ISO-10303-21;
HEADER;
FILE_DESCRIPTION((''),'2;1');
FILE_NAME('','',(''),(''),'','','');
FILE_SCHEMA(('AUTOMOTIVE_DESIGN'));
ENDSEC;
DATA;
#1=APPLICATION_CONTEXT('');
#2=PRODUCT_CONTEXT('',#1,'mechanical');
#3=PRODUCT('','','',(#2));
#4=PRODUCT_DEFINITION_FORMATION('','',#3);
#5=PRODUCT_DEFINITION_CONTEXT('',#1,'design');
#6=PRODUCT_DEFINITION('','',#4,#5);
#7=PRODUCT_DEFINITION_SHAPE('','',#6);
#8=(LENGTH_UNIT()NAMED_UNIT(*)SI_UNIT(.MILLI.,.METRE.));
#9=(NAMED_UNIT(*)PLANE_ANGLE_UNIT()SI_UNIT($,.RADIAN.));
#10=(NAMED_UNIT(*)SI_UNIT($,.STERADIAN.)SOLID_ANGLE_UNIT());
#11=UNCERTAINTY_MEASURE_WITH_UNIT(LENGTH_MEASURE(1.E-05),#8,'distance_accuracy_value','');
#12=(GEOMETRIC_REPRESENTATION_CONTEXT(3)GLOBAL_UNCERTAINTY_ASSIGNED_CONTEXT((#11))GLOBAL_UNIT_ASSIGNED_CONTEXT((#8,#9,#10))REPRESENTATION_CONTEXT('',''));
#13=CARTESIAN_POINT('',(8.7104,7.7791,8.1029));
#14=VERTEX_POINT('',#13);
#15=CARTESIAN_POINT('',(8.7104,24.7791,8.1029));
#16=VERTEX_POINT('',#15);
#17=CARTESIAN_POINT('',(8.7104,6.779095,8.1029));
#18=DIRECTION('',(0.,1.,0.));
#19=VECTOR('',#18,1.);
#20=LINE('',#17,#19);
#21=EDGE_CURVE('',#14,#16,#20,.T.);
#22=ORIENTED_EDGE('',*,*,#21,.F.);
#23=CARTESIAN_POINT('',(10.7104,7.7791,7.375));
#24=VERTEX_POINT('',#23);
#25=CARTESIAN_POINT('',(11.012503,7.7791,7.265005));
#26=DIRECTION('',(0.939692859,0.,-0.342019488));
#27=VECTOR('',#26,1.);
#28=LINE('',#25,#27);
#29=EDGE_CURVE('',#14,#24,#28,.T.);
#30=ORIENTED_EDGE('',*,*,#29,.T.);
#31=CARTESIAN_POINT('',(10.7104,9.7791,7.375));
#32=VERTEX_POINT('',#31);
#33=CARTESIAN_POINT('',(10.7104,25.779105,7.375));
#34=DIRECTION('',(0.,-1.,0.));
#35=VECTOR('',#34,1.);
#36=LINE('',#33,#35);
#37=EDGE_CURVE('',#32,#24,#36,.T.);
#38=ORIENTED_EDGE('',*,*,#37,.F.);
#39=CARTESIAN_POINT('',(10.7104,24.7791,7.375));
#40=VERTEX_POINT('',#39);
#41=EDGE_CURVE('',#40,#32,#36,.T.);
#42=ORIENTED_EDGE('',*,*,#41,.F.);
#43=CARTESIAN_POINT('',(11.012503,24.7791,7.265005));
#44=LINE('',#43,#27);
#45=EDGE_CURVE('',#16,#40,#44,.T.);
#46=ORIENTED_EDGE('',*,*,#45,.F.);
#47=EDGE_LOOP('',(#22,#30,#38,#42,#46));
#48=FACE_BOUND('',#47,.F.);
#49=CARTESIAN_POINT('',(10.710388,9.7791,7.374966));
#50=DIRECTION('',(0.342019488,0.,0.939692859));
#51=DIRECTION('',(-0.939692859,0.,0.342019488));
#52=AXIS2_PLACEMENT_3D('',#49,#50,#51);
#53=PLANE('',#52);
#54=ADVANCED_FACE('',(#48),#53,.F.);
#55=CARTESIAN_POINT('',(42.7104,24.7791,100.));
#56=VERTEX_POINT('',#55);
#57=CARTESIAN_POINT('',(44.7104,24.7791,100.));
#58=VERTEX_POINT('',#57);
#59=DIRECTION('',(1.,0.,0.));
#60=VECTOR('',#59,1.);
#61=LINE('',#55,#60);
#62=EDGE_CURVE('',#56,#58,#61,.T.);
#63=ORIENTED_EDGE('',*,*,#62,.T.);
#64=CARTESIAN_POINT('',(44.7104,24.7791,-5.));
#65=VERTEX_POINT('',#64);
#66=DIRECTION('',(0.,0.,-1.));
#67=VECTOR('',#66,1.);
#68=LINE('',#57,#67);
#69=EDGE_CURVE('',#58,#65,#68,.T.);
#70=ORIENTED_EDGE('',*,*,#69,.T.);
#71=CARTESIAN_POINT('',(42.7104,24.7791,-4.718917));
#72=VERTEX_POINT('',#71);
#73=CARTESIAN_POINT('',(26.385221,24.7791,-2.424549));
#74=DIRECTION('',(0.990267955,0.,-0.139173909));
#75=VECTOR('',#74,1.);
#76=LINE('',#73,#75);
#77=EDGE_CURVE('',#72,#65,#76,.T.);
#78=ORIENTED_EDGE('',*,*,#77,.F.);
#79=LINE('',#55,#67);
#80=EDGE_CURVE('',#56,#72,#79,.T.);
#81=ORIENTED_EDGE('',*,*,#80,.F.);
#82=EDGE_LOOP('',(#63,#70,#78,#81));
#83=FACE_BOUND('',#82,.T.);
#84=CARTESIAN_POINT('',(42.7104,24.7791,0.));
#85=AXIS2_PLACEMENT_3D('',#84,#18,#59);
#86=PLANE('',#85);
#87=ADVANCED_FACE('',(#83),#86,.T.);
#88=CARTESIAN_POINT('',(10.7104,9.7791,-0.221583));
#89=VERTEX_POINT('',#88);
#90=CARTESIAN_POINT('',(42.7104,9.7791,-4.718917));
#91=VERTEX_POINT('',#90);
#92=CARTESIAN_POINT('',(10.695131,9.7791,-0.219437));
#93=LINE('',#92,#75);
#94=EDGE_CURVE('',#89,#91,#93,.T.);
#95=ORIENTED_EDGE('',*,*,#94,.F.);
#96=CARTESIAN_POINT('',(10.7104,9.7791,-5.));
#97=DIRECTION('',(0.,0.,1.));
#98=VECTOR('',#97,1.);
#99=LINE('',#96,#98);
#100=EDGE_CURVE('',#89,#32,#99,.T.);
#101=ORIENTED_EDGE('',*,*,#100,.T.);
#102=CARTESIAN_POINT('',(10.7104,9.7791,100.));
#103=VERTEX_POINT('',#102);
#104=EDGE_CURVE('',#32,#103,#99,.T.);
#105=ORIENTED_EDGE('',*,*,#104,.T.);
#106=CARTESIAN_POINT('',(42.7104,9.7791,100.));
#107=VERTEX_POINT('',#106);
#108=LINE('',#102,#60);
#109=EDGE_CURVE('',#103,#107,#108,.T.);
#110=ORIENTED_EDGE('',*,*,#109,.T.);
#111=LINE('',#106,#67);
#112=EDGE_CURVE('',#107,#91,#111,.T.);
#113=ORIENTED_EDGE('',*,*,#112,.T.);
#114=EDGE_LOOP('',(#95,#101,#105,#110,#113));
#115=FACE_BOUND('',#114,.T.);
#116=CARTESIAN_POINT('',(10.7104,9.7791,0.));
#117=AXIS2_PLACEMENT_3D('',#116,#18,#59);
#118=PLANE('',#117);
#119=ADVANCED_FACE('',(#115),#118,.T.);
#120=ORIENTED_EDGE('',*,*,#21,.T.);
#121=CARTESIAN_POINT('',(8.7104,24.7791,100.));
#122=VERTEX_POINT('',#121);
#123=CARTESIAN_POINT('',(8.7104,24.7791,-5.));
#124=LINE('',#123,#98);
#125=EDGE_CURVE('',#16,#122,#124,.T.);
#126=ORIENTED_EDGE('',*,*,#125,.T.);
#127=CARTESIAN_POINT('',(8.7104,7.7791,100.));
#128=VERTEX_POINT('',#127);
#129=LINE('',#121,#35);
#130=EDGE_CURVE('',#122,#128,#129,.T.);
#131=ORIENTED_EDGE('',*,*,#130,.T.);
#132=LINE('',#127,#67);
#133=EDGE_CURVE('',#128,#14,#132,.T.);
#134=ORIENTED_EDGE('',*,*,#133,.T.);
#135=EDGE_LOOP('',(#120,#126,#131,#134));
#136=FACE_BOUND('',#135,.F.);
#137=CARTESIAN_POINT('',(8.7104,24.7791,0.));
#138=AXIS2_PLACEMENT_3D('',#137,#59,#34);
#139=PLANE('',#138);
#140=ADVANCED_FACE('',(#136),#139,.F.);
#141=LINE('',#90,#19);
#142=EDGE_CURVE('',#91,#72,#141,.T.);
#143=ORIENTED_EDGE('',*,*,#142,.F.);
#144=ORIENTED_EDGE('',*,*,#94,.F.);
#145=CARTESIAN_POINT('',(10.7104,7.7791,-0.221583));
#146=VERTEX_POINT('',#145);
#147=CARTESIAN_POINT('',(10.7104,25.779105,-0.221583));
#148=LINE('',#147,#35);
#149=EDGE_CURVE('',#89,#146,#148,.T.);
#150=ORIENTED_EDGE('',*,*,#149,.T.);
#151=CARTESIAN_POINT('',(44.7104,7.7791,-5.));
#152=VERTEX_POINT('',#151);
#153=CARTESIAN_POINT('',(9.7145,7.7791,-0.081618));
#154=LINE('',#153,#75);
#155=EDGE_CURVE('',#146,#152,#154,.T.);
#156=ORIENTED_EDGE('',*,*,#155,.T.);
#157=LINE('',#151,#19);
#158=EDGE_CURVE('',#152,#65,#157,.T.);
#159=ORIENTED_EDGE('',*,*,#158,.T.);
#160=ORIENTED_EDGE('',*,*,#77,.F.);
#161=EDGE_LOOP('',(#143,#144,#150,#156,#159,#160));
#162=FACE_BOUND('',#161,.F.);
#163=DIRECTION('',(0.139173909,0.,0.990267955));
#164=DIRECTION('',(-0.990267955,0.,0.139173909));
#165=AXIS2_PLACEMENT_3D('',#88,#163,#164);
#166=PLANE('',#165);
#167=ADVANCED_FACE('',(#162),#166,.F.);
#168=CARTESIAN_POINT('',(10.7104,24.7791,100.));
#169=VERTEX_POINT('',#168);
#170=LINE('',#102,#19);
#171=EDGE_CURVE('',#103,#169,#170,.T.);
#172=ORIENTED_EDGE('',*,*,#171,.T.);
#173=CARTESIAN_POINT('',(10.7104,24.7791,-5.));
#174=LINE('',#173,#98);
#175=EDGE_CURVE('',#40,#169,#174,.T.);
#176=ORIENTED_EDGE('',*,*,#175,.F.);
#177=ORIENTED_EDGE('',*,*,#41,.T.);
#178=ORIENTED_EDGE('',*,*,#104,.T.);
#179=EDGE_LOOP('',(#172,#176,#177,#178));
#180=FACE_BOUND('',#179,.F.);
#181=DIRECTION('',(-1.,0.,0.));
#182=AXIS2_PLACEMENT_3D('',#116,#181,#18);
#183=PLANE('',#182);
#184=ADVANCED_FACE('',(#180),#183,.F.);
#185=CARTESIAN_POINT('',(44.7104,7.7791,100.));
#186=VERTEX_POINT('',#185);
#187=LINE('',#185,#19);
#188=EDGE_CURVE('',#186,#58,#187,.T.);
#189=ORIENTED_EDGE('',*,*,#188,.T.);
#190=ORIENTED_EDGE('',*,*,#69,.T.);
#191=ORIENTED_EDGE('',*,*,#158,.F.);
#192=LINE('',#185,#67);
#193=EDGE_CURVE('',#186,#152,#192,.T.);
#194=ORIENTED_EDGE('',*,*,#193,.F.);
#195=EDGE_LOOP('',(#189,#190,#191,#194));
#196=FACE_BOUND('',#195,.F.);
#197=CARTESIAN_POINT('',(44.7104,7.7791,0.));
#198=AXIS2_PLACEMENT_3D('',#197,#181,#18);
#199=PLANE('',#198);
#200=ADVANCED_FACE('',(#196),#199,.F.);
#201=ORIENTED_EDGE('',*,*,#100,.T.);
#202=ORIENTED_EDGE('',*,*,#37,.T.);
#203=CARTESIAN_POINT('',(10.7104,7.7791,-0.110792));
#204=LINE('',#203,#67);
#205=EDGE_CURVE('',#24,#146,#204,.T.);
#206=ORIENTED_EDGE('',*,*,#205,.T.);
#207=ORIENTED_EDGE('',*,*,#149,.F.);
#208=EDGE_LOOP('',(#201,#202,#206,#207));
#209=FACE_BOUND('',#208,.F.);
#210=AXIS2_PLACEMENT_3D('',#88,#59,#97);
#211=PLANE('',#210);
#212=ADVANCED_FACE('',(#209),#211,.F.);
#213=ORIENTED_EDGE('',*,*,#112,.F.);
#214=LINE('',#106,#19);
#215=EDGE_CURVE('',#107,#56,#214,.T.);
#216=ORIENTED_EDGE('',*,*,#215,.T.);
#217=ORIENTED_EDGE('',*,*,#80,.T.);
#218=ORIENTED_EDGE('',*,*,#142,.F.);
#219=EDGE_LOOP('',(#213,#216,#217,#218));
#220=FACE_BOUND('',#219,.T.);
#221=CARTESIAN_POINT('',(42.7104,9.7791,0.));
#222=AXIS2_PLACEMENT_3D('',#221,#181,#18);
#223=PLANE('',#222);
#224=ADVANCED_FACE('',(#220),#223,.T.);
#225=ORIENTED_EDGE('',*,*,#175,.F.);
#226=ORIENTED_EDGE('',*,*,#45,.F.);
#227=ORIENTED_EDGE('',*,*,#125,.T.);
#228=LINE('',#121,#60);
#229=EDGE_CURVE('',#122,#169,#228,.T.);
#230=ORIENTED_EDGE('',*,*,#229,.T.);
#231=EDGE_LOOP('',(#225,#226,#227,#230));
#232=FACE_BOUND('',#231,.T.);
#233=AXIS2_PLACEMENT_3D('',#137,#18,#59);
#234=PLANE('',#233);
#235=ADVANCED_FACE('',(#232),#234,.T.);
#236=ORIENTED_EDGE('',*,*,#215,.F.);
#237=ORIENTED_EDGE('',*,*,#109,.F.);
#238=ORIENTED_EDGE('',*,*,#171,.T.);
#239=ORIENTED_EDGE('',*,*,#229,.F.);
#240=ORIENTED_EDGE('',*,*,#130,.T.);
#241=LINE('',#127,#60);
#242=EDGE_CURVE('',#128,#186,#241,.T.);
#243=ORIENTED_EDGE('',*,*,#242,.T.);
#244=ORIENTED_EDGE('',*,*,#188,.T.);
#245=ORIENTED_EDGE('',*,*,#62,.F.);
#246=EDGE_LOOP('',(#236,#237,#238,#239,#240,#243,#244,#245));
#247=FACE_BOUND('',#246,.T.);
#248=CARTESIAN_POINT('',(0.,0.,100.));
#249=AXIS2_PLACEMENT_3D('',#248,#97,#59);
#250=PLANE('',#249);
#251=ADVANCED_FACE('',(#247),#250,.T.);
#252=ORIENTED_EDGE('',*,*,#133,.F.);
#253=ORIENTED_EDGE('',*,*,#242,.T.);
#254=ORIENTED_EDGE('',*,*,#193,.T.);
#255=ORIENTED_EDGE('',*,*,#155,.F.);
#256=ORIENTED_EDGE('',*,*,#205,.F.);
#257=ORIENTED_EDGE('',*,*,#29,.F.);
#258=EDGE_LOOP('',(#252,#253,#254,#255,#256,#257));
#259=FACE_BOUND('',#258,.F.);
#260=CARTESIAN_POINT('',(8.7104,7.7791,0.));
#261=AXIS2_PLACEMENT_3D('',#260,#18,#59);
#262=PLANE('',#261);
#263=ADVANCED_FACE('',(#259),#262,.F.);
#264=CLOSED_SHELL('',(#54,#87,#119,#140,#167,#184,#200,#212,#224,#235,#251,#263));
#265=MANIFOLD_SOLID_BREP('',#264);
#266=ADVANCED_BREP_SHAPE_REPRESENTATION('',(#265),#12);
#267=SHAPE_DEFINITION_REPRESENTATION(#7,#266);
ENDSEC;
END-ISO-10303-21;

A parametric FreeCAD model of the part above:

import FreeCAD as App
import Part
import Sketcher
Q = App.Units.Quantity

doc = App.newDocument("Part")
body = doc.addObject("PartDesign::Body", "Body")

# Sketch on XY plane
sketch1 = body.newObject("Sketcher::SketchObject", "Sketch")
sketch1.AttachmentSupport = (doc.getObject("XY_Plane"), [""])
sketch1.MapMode = "FlatFace"
sketch1.addGeometry(Part.LineSegment(App.Vector(42.7104, 9.7791, 0), App.Vector(10.7104, 9.7791, 0)), False)
sketch1.addGeometry(Part.LineSegment(App.Vector(10.7104, 9.7791, 0), App.Vector(10.7104, 24.7791, 0)), False)
sketch1.addGeometry(Part.LineSegment(App.Vector(10.7104, 24.7791, 0), App.Vector(8.7104, 24.7791, 0)), False)
sketch1.addGeometry(Part.LineSegment(App.Vector(8.7104, 24.7791, 0), App.Vector(8.7104, 7.7791, 0)), False)
sketch1.addGeometry(Part.LineSegment(App.Vector(8.7104, 7.7791, 0), App.Vector(44.7104, 7.7791, 0)), False)
sketch1.addGeometry(Part.LineSegment(App.Vector(44.7104, 7.7791, 0), App.Vector(44.7104, 24.7791, 0)), False)
sketch1.addGeometry(Part.LineSegment(App.Vector(44.7104, 24.7791, 0), App.Vector(42.7104, 24.7791, 0)), False)
sketch1.addGeometry(Part.LineSegment(App.Vector(42.7104, 24.7791, 0), App.Vector(42.7104, 9.7791, 0)), False)
sketch1.addConstraint(Sketcher.Constraint("Coincident", 0, 2, 1, 1))
sketch1.addConstraint(Sketcher.Constraint("Coincident", 1, 2, 2, 1))
sketch1.addConstraint(Sketcher.Constraint("Coincident", 2, 2, 3, 1))
sketch1.addConstraint(Sketcher.Constraint("Coincident", 3, 2, 4, 1))
sketch1.addConstraint(Sketcher.Constraint("Coincident", 4, 2, 5, 1))
sketch1.addConstraint(Sketcher.Constraint("Coincident", 5, 2, 6, 1))
sketch1.addConstraint(Sketcher.Constraint("Coincident", 6, 2, 7, 1))
sketch1.addConstraint(Sketcher.Constraint("Coincident", 7, 2, 0, 1))
sketch1.addConstraint(Sketcher.Constraint("Horizontal", 0))
sketch1.addConstraint(Sketcher.Constraint("Vertical", 1))
sketch1.addConstraint(Sketcher.Constraint("Horizontal", 2))
sketch1.addConstraint(Sketcher.Constraint("Vertical", 3))
sketch1.addConstraint(Sketcher.Constraint("Horizontal", 4))
sketch1.addConstraint(Sketcher.Constraint("Vertical", 5))
sketch1.addConstraint(Sketcher.Constraint("Horizontal", 6))
sketch1.addConstraint(Sketcher.Constraint("Vertical", 7))
sketch1.addConstraint(Sketcher.Constraint("Horizontal", 2, 2, 5, 2))
sketch1.addConstraint(Sketcher.Constraint("Equal", 2, 6))
sketch1.addConstraint(Sketcher.Constraint("DistanceX", 0, 2, 0, 1, 32.0))
sketch1.addConstraint(Sketcher.Constraint("DistanceX", 2, 2, 2, 1, 2.0))
sketch1.addConstraint(Sketcher.Constraint("DistanceY", 1, 1, 1, 2, 15.0))
sketch1.addConstraint(Sketcher.Constraint("DistanceY", 3, 2, 0, 2, 2.0))
sketch1.addConstraint(Sketcher.Constraint("DistanceY", -1, 1, 0, 2, 9.779))
sketch1.addConstraint(Sketcher.Constraint("DistanceX", -1, 1, 0, 2, 10.7104))
pad1 = body.newObject("PartDesign::Pad", "Pad")
pad1.Profile = sketch1
pad1.Type = "TwoLengths"
pad1.Length = 100
pad1.Length2 = 5

# Sketch on XZ plane
sketch2 = body.newObject("Sketcher::SketchObject", "Sketch001")
sketch2.AttachmentSupport = (doc.getObject("XZ_Plane"), [""])
sketch2.MapMode = "FlatFace"
sketch2.AttachmentOffset = App.Placement(App.Vector(0, 0, -9.7791), App.Rotation())
sketch2.addGeometry(Part.LineSegment(App.Vector(8.7104, -5, 0), App.Vector(8.7104, 0.0595, 0)), False)
sketch2.addGeometry(Part.LineSegment(App.Vector(8.7104, 0.0595, 0), App.Vector(44.7104, -5, 0)), False)
sketch2.addGeometry(Part.LineSegment(App.Vector(44.7104, -5, 0), App.Vector(8.7104, -5, 0)), False)
sketch2.addConstraint(Sketcher.Constraint("Coincident", 0, 2, 1, 1))
sketch2.addConstraint(Sketcher.Constraint("Coincident", 1, 2, 2, 1))
sketch2.addConstraint(Sketcher.Constraint("Coincident", 2, 2, 0, 1))
sketch2.addConstraint(Sketcher.Constraint("Vertical", 0))
sketch2.addConstraint(Sketcher.Constraint("Horizontal", 2))
sketch2.addConstraint(Sketcher.Constraint("DistanceX", 2, 2, 2, 1, 36.0))
sketch2.addConstraint(Sketcher.Constraint("Angle", 1, Q("-8 deg")))
sketch2.addConstraint(Sketcher.Constraint("DistanceY", 1, 2, -1, 1, 5.0))
sketch2.addConstraint(Sketcher.Constraint("DistanceX", -1, 1, 0, 2, 8.7104))
pocket1 = body.newObject("PartDesign::Pocket", "Pocket")
pocket1.Profile = sketch2
pocket1.Type = "ThroughAll"
pocket1.Midplane = True

# Sketch on XZ plane
sketch3 = body.newObject("Sketcher::SketchObject", "Sketch002")
sketch3.AttachmentSupport = (doc.getObject("XZ_Plane"), [""])
sketch3.MapMode = "FlatFace"
sketch3.AttachmentOffset = App.Placement(App.Vector(0, 0, -9.7791), App.Rotation())
sketch3.addGeometry(Part.LineSegment(App.Vector(10.7104, -0.221583, 0), App.Vector(8.7104, 0.0595, 0)), False)
sketch3.addGeometry(Part.LineSegment(App.Vector(8.7104, 0.0595, 0), App.Vector(8.7104, 8.1029, 0)), False)
sketch3.addGeometry(Part.LineSegment(App.Vector(8.7104, 8.1029, 0), App.Vector(10.710388, 7.374966, 0)), False)
sketch3.addGeometry(Part.LineSegment(App.Vector(10.7104, 7.375, 0), App.Vector(10.7104, -0.221583, 0)), False)
sketch3.addConstraint(Sketcher.Constraint("Coincident", 0, 2, 1, 1))
sketch3.addConstraint(Sketcher.Constraint("Coincident", 1, 2, 2, 1))
sketch3.addConstraint(Sketcher.Constraint("Coincident", 2, 2, 3, 1))
sketch3.addConstraint(Sketcher.Constraint("Coincident", 3, 2, 0, 1))
sketch3.addConstraint(Sketcher.Constraint("Vertical", 1))
sketch3.addConstraint(Sketcher.Constraint("Vertical", 3))
sketch3.addConstraint(Sketcher.Constraint("Angle", 0, Q("172 deg")))
sketch3.addConstraint(Sketcher.Constraint("Angle", 2, Q("-20 deg")))
sketch3.addConstraint(Sketcher.Constraint("DistanceX", 1, 2, 2, 2, 2.0))
sketch3.addConstraint(Sketcher.Constraint("DistanceY", 1, 1, 1, 2, 8.0434))
sketch3.addConstraint(Sketcher.Constraint("DistanceY", -1, 1, 1, 2, 8.103))
sketch3.addConstraint(Sketcher.Constraint("DistanceX", -1, 1, 0, 2, 8.7104))
pocket2 = body.newObject("PartDesign::Pocket", "Pocket001")
pocket2.Profile = sketch3
pocket2.Type = "ThroughAll"
pocket2.Midplane = True

doc.recompute()
